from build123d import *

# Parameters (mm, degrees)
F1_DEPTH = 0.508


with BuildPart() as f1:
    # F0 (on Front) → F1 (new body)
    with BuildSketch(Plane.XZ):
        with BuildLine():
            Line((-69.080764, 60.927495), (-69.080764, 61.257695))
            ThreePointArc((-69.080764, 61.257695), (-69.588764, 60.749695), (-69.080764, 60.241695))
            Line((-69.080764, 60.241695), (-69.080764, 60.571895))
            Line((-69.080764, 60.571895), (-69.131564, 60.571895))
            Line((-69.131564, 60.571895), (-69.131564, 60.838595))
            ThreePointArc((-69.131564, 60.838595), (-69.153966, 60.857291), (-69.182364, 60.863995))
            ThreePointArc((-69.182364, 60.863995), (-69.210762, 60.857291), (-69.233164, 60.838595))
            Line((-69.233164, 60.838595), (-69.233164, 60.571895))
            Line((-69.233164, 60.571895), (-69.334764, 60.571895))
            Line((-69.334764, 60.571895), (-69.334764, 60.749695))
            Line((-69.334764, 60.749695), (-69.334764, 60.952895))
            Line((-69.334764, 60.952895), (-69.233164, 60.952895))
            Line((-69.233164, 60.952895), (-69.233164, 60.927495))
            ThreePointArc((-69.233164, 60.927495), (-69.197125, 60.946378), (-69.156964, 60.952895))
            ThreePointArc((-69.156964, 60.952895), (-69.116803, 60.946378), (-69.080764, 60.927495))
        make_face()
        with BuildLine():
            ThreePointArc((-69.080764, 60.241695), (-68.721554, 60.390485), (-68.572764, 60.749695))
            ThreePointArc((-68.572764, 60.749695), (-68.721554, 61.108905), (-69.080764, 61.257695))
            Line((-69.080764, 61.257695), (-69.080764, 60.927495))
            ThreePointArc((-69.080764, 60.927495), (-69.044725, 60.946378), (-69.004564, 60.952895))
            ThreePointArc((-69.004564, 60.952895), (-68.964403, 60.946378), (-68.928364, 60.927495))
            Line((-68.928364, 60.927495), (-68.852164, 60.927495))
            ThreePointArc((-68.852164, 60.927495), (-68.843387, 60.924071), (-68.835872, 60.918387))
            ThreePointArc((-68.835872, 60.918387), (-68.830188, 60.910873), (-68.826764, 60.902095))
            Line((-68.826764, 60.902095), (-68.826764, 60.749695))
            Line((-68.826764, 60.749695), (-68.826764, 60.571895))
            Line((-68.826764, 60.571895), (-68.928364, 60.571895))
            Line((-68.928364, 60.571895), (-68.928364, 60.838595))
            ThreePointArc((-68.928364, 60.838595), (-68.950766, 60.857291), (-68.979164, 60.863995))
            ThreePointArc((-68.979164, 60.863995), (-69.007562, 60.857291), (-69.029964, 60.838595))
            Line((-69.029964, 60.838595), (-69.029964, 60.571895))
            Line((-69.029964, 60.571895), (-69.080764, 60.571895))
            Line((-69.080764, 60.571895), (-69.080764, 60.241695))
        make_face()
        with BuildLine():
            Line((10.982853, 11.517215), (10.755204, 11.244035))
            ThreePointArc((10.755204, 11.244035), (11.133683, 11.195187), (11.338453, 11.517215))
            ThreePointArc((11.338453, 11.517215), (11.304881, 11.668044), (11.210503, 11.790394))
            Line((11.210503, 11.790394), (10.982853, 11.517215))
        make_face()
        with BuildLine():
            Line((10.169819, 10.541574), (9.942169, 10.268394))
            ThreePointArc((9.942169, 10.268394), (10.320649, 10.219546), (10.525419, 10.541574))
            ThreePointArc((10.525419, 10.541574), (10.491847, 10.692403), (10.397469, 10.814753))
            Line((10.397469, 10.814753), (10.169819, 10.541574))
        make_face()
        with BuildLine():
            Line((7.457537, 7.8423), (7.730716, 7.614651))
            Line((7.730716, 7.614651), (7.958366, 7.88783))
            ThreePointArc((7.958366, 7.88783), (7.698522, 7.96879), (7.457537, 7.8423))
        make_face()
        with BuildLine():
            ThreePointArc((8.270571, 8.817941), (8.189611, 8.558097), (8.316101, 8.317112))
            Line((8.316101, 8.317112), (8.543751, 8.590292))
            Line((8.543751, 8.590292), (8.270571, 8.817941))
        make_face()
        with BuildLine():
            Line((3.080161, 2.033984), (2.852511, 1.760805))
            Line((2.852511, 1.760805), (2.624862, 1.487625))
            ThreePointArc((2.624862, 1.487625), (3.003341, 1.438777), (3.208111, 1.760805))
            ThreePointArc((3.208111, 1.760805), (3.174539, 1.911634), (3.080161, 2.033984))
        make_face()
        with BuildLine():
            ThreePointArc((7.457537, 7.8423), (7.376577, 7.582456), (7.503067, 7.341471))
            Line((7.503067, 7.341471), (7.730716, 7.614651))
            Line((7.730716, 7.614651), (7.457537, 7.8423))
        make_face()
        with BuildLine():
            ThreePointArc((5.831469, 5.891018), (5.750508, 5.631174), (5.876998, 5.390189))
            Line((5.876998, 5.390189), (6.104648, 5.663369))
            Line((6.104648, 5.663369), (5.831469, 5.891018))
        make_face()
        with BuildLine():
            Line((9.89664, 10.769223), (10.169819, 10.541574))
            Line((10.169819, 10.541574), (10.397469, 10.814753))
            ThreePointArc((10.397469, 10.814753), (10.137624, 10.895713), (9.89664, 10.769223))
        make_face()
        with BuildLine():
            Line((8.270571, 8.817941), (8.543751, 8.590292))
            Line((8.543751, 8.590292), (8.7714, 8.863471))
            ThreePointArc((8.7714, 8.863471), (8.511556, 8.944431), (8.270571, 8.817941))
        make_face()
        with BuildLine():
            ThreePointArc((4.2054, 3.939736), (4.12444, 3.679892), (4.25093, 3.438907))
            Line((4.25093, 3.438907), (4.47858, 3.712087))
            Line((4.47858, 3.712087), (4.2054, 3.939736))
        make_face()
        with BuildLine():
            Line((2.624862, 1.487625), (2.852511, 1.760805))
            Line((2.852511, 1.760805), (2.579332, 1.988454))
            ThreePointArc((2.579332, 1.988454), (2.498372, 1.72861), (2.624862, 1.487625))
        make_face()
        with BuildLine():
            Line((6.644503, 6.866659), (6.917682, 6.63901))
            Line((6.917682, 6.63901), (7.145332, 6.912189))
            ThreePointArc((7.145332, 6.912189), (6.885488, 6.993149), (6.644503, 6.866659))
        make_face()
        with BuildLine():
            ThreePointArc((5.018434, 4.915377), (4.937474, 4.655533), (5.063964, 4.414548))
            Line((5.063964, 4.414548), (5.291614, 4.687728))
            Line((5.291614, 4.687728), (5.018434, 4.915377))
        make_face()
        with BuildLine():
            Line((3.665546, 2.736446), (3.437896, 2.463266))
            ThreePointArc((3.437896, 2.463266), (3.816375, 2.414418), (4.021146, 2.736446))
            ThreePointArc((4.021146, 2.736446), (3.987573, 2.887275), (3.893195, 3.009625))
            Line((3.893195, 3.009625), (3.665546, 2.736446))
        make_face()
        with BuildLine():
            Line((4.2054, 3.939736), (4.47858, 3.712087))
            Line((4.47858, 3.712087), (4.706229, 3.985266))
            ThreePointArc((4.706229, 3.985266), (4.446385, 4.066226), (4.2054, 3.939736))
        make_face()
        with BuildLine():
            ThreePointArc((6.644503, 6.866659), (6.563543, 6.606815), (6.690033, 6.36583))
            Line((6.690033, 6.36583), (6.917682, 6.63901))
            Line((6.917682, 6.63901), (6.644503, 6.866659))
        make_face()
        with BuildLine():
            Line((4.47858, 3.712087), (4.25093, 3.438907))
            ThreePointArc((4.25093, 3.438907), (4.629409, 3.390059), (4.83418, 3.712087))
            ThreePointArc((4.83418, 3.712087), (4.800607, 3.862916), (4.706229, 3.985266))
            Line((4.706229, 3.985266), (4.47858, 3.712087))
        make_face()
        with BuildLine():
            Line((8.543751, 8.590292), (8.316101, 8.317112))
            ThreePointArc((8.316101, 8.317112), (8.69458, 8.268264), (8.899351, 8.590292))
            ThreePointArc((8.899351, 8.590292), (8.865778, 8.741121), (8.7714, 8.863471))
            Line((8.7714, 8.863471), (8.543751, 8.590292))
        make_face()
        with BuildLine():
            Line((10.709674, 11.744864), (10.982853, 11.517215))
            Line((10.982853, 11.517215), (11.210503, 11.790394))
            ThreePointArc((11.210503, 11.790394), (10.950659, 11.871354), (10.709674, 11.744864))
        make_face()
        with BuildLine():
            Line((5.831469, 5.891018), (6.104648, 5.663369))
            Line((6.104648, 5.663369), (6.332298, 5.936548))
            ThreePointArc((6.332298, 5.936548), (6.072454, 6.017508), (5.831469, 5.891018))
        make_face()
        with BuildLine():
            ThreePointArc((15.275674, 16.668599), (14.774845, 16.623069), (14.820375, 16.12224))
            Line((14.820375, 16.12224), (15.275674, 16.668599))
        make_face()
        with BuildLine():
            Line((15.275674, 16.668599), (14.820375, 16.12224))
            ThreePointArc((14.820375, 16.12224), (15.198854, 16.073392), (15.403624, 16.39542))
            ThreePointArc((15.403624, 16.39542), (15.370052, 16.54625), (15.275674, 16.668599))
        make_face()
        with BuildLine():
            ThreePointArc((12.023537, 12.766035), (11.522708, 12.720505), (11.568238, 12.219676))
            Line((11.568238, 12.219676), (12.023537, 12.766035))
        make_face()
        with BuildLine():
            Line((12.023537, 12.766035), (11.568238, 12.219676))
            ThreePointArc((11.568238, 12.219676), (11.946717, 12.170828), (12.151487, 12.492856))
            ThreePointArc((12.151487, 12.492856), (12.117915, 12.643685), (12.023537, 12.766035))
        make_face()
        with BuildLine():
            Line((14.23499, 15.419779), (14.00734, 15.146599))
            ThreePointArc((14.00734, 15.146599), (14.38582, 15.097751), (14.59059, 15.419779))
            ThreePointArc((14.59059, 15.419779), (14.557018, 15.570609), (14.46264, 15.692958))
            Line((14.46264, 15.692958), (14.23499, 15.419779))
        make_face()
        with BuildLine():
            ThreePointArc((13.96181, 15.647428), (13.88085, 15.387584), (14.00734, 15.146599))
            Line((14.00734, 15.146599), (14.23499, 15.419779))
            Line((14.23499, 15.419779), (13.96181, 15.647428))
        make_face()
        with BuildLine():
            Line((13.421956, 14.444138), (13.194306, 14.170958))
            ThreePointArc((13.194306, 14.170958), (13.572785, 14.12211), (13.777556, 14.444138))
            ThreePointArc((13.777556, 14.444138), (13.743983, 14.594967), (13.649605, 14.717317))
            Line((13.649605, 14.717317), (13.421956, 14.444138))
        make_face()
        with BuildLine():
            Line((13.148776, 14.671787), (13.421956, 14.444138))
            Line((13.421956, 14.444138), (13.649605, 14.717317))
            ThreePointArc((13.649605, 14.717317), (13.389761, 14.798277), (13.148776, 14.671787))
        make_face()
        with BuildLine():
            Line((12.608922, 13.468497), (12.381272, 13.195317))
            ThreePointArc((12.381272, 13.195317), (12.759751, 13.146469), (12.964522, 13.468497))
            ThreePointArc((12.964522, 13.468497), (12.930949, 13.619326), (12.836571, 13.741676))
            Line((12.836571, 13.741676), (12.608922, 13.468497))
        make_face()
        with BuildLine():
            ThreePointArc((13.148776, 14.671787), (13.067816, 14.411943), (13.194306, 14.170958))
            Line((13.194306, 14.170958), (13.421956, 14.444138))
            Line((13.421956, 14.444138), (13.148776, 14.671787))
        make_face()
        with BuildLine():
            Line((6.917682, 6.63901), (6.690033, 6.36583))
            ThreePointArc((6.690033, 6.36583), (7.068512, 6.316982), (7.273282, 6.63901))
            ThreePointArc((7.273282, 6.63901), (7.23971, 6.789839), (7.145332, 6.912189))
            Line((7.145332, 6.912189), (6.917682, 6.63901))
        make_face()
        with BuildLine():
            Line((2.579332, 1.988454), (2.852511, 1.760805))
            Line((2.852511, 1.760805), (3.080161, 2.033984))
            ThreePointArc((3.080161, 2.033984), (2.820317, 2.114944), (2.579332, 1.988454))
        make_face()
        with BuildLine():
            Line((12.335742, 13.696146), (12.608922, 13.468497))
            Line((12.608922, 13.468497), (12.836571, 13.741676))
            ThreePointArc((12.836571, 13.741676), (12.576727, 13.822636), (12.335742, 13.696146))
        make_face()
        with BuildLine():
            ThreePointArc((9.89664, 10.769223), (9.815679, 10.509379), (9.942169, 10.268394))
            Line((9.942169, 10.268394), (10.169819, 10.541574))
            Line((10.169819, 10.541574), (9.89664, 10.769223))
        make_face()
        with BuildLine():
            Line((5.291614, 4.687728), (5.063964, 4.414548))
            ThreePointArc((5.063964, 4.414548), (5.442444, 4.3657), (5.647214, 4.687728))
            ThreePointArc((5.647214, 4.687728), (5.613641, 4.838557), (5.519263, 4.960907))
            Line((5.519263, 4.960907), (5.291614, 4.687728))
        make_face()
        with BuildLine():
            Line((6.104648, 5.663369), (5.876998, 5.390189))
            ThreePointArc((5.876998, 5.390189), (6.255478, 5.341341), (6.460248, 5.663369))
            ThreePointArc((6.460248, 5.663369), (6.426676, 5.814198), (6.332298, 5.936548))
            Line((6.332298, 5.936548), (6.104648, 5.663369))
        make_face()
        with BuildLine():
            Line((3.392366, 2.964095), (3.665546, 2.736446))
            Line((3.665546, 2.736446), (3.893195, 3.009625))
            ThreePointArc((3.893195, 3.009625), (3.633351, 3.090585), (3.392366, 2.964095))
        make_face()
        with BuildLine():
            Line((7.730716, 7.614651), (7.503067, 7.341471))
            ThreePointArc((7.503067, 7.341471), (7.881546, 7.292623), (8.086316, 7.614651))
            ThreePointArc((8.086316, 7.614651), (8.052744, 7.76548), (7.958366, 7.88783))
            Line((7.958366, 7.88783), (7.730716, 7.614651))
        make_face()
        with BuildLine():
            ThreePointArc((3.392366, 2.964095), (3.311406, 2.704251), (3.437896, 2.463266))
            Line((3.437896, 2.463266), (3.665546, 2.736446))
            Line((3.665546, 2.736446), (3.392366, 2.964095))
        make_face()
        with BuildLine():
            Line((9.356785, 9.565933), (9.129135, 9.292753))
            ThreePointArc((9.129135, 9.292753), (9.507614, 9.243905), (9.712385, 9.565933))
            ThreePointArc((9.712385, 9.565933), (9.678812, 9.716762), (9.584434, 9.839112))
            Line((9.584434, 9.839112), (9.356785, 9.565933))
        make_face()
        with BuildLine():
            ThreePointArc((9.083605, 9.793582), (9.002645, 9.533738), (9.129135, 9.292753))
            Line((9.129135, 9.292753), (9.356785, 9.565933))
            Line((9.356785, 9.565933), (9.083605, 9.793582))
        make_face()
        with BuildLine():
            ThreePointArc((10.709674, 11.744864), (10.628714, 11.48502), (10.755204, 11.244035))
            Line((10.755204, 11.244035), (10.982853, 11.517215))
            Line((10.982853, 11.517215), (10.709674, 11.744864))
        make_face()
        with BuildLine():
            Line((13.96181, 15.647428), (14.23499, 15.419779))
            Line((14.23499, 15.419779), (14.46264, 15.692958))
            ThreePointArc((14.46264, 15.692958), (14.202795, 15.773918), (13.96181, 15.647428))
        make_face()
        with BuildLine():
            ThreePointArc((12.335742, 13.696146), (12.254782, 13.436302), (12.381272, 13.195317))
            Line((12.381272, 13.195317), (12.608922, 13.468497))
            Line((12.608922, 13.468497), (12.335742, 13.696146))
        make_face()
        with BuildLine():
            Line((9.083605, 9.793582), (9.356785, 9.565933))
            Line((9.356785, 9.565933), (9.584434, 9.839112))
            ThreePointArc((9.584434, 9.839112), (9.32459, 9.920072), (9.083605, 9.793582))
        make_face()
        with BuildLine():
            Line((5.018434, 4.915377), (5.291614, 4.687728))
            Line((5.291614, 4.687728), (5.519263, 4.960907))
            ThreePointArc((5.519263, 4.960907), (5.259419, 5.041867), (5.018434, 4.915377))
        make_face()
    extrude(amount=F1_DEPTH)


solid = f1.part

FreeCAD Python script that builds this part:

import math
import FreeCAD as App
import Part
import Sketcher

V = App.Vector
Q = App.Units.Quantity

doc = App.newDocument("Part")
body = doc.addObject("PartDesign::Body", "Body")
body.AllowCompound = True

# Sketch on XZ plane
sketch1 = body.newObject("Sketcher::SketchObject", "Sketch")
sketch1.AttachmentSupport = (doc.getObject("XZ_Plane"), [""])
sketch1.MapMode = "FlatFace"
sketch1.addGeometry([
    Part.ArcOfCircle(Part.Circle(V(-69.080764, 60.749695, 0), V(0, 0, 1), 0.508), math.radians(90), math.radians(270)),  # 0
    Part.ArcOfCircle(Part.Circle(V(-69.080765, 60.749696, 0), V(0, 0, 1), 0.508001), math.radians(-89.999906), math.radians(-0.000094)),  # 1
    Part.ArcOfCircle(Part.Circle(V(-69.080765, 60.749694, 0), V(0, 0, 1), 0.508001), math.radians(0.000094), math.radians(89.999906)),  # 2
    Part.LineSegment(V(-69.131564, 60.571895, 0), V(-69.131564, 60.838595, 0)),  # 3
    Part.ArcOfCircle(Part.Circle(V(-69.182365, 60.800494, 0), V(0, 0, 1), 0.063501), math.radians(36.870438), math.radians(89.999459)),  # 4
    Part.ArcOfCircle(Part.Circle(V(-69.182363, 60.800494, 0), V(0, 0, 1), 0.063501), math.radians(90.000541), math.radians(143.129562)),  # 5
    Part.LineSegment(V(-69.233164, 60.838595, 0), V(-69.233164, 60.571895, 0)),  # 6
    Part.LineSegment(V(-69.233164, 60.571895, 0), V(-69.334764, 60.571895, 0)),  # 7
    Part.LineSegment(V(-69.334764, 60.571895, 0), V(-69.334764, 60.952895, 0)),  # 8
    Part.LineSegment(V(-69.334764, 60.952895, 0), V(-69.233164, 60.952895, 0)),  # 9
    Part.LineSegment(V(-69.233164, 60.952895, 0), V(-69.233164, 60.927495, 0)),  # 10
    Part.ArcOfCircle(Part.Circle(V(-69.156965, 60.825899, 0), V(0, 0, 1), 0.126996), math.radians(89.999352), math.radians(126.870546)),  # 11
    Part.ArcOfCircle(Part.Circle(V(-69.156963, 60.825899, 0), V(0, 0, 1), 0.126996), math.radians(53.129454), math.radians(90.000648)),  # 12
    Part.ArcOfCircle(Part.Circle(V(-69.004565, 60.825899, 0), V(0, 0, 1), 0.126996), math.radians(89.999352), math.radians(126.870546)),  # 13
    Part.ArcOfCircle(Part.Circle(V(-69.004563, 60.825899, 0), V(0, 0, 1), 0.126996), math.radians(53.129454), math.radians(90.000648)),  # 14
    Part.LineSegment(V(-68.928364, 60.927495, 0), V(-68.852164, 60.927495, 0)),  # 15
    Part.ArcOfCircle(Part.Circle(V(-68.860121, 60.894136, 0), V(0, 0, 1), 0.034295), math.radians(45.001837), math.radians(76.583644)),  # 16
    Part.ArcOfCircle(Part.Circle(V(-68.860112, 60.894144, 0), V(0, 0, 1), 0.034282), math.radians(13.410476), math.radians(45.004041)),  # 17
    Part.LineSegment(V(-68.826764, 60.902095, 0), V(-68.826764, 60.571895, 0)),  # 18
    Part.LineSegment(V(-68.826764, 60.571895, 0), V(-68.928364, 60.571895, 0)),  # 19
    Part.LineSegment(V(-68.928364, 60.571895, 0), V(-68.928364, 60.838595, 0)),  # 20
    Part.ArcOfCircle(Part.Circle(V(-68.979165, 60.800494, 0), V(0, 0, 1), 0.063501), math.radians(36.870438), math.radians(89.999459)),  # 21
    Part.ArcOfCircle(Part.Circle(V(-68.979163, 60.800494, 0), V(0, 0, 1), 0.063501), math.radians(90.000541), math.radians(143.129562)),  # 22
    Part.LineSegment(V(-69.029964, 60.838595, 0), V(-69.029964, 60.571895, 0)),  # 23
    Part.LineSegment(V(-69.029964, 60.571895, 0), V(-69.131564, 60.571895, 0)),  # 24
    Part.ArcOfCircle(Part.Circle(V(10.982853, 11.517214, 0), V(0, 0, 1), 0.3556), math.radians(-129.805572), math.radians(0.000126)),  # 25
    Part.ArcOfCircle(Part.Circle(V(10.982854, 11.517215, 0), V(0, 0, 1), 0.355599), math.radians(-0.00008), math.radians(50.194441)),  # 26
    Part.ArcOfCircle(Part.Circle(V(10.982854, 11.517214, 0), V(0, 0, 1), 0.3556), math.radians(50.194474), math.radians(140.194405)),  # 27
    Part.ArcOfCircle(Part.Circle(V(10.982854, 11.517215, 0), V(0, 0, 1), 0.3556), math.radians(140.194474), math.radians(230.194405)),  # 28
    Part.ArcOfCircle(Part.Circle(V(10.169819, 10.541574, 0), V(0, 0, 1), 0.3556), math.radians(-129.80559), math.radians(0.000069)),  # 29
    Part.ArcOfCircle(Part.Circle(V(10.16982, 10.541574, 0), V(0, 0, 1), 0.355599), math.radians(-0.00008), math.radians(50.194441)),  # 30
    Part.ArcOfCircle(Part.Circle(V(10.169819, 10.541574, 0), V(0, 0, 1), 0.3556), math.radians(50.194438), math.radians(140.19444)),  # 31
    Part.ArcOfCircle(Part.Circle(V(10.169818, 10.541573, 0), V(0, 0, 1), 0.355599), math.radians(140.194159), math.radians(230.194492)),  # 32
    Part.ArcOfCircle(Part.Circle(V(7.730717, 7.61465, 0), V(0, 0, 1), 0.3556), math.radians(50.194474), math.radians(140.194405)),  # 33
    Part.ArcOfCircle(Part.Circle(V(7.730717, 7.614651, 0), V(0, 0, 1), 0.3556), math.radians(140.194474), math.radians(230.194405)),  # 34
    Part.ArcOfCircle(Part.Circle(V(7.730716, 7.61465, 0), V(0, 0, 1), 0.3556), math.radians(-129.805572), math.radians(0.000126)),  # 35
    Part.ArcOfCircle(Part.Circle(V(7.730717, 7.614651, 0), V(0, 0, 1), 0.355599), math.radians(-0.00008), math.radians(50.194441)),  # 36
    Part.ArcOfCircle(Part.Circle(V(8.543751, 8.590292, 0), V(0, 0, 1), 0.3556), math.radians(140.194474), math.radians(230.194405)),  # 37
    Part.ArcOfCircle(Part.Circle(V(8.54375, 8.590292, 0), V(0, 0, 1), 0.355601), math.radians(-129.805483), math.radians(-0.000038)),  # 38
    Part.ArcOfCircle(Part.Circle(V(8.543747, 8.590289, 0), V(0, 0, 1), 0.355604), math.radians(0.000454), math.radians(50.194251)),  # 39
    Part.ArcOfCircle(Part.Circle(V(8.543751, 8.590291, 0), V(0, 0, 1), 0.3556), math.radians(50.194474), math.radians(140.194405)),  # 40
    Part.ArcOfCircle(Part.Circle(V(2.852512, 1.760805, 0), V(0, 0, 1), 0.3556), math.radians(140.194474), math.radians(230.194405)),  # 41
    Part.ArcOfCircle(Part.Circle(V(2.852511, 1.760804, 0), V(0, 0, 1), 0.3556), math.radians(-129.805572), math.radians(0.000126)),  # 42
    Part.ArcOfCircle(Part.Circle(V(2.852512, 1.760805, 0), V(0, 0, 1), 0.355599), math.radians(-0.00008), math.radians(50.194441)),  # 43
    Part.ArcOfCircle(Part.Circle(V(2.852512, 1.760804, 0), V(0, 0, 1), 0.3556), math.radians(50.194474), math.radians(140.194405)),  # 44
    Part.ArcOfCircle(Part.Circle(V(6.104647, 5.663368, 0), V(0, 0, 1), 0.355599), math.radians(140.194159), math.radians(230.194492)),  # 45
    Part.ArcOfCircle(Part.Circle(V(6.104648, 5.663369, 0), V(0, 0, 1), 0.3556), math.radians(-129.80559), math.radians(0.000069)),  # 46
    Part.ArcOfCircle(Part.Circle(V(6.104649, 5.663369, 0), V(0, 0, 1), 0.355599), math.radians(-0.00008), math.radians(50.194441)),  # 47
    Part.ArcOfCircle(Part.Circle(V(6.104649, 5.663368, 0), V(0, 0, 1), 0.3556), math.radians(50.194474), math.radians(140.194405)),  # 48
    Part.ArcOfCircle(Part.Circle(V(4.47858, 3.712087, 0), V(0, 0, 1), 0.3556), math.radians(140.194474), math.radians(230.194405)),  # 49
    Part.ArcOfCircle(Part.Circle(V(4.478579, 3.712087, 0), V(0, 0, 1), 0.355601), math.radians(-129.805483), math.radians(-0.000038)),  # 50
    Part.ArcOfCircle(Part.Circle(V(4.478576, 3.712084, 0), V(0, 0, 1), 0.355604), math.radians(0.000454), math.radians(50.194251)),  # 51
    Part.ArcOfCircle(Part.Circle(V(4.47858, 3.712086, 0), V(0, 0, 1), 0.3556), math.radians(50.194474), math.radians(140.194405)),  # 52
    Part.ArcOfCircle(Part.Circle(V(6.917683, 6.639009, 0), V(0, 0, 1), 0.3556), math.radians(50.194474), math.radians(140.194405)),  # 53
    Part.ArcOfCircle(Part.Circle(V(6.917683, 6.63901, 0), V(0, 0, 1), 0.3556), math.radians(140.194474), math.radians(230.194405)),  # 54
    Part.ArcOfCircle(Part.Circle(V(6.917682, 6.639009, 0), V(0, 0, 1), 0.3556), math.radians(-129.805572), math.radians(0.000126)),  # 55
    Part.ArcOfCircle(Part.Circle(V(6.917683, 6.63901, 0), V(0, 0, 1), 0.355599), math.radians(-0.00008), math.radians(50.194441)),  # 56
    Part.ArcOfCircle(Part.Circle(V(5.291614, 4.687728, 0), V(0, 0, 1), 0.3556), math.radians(140.194474), math.radians(230.194405)),  # 57
    Part.ArcOfCircle(Part.Circle(V(5.291614, 4.687728, 0), V(0, 0, 1), 0.3556), math.radians(-129.80559), math.radians(0.000069)),  # 58
    Part.ArcOfCircle(Part.Circle(V(5.29161, 4.687725, 0), V(0, 0, 1), 0.355604), math.radians(0.000454), math.radians(50.194251)),  # 59
    Part.ArcOfCircle(Part.Circle(V(5.291614, 4.687727, 0), V(0, 0, 1), 0.3556), math.radians(50.194474), math.radians(140.194405)),  # 60
    Part.ArcOfCircle(Part.Circle(V(3.665545, 2.736446, 0), V(0, 0, 1), 0.355601), math.radians(-129.805483), math.radians(-0.000038)),  # 61
    Part.ArcOfCircle(Part.Circle(V(3.665542, 2.736443, 0), V(0, 0, 1), 0.355604), math.radians(0.000454), math.radians(50.194251)),  # 62
    Part.ArcOfCircle(Part.Circle(V(3.665546, 2.736445, 0), V(0, 0, 1), 0.3556), math.radians(50.194474), math.radians(140.194405)),  # 63
    Part.ArcOfCircle(Part.Circle(V(3.665546, 2.736446, 0), V(0, 0, 1), 0.3556), math.radians(140.194474), math.radians(230.194405)),  # 64
    Part.ArcOfCircle(Part.Circle(V(15.048025, 16.395419, 0), V(0, 0, 1), 0.3556), math.radians(50.194439), math.radians(230.194439)),  # 65
    Part.ArcOfCircle(Part.Circle(V(15.048024, 16.395419, 0), V(0, 0, 1), 0.3556), math.radians(-129.805572), math.radians(0.000126)),  # 66
    Part.ArcOfCircle(Part.Circle(V(15.048029, 16.395422, 0), V(0, 0, 1), 0.355595), math.radians(-0.000387), math.radians(50.194748)),  # 67
    Part.ArcOfCircle(Part.Circle(V(11.795887, 12.492855, 0), V(0, 0, 1), 0.3556), math.radians(50.194439), math.radians(230.194439)),  # 68
    Part.ArcOfCircle(Part.Circle(V(11.795887, 12.492855, 0), V(0, 0, 1), 0.3556), math.radians(-129.805572), math.radians(0.000126)),  # 69
    Part.ArcOfCircle(Part.Circle(V(11.795888, 12.492856, 0), V(0, 0, 1), 0.355599), math.radians(-0.00008), math.radians(50.194441)),  # 70
    Part.ArcOfCircle(Part.Circle(V(14.23499, 15.419779, 0), V(0, 0, 1), 0.3556), math.radians(-129.80559), math.radians(0.000069)),  # 71
    Part.ArcOfCircle(Part.Circle(V(14.234995, 15.419781, 0), V(0, 0, 1), 0.355595), math.radians(-0.000387), math.radians(50.194748)),  # 72
    Part.ArcOfCircle(Part.Circle(V(14.23499, 15.419777, 0), V(0, 0, 1), 0.355601), math.radians(50.194526), math.radians(140.194332)),  # 73
    Part.ArcOfCircle(Part.Circle(V(14.23499, 15.419779, 0), V(0, 0, 1), 0.3556), math.radians(140.194474), math.radians(230.194405)),  # 74
    Part.ArcOfCircle(Part.Circle(V(13.421955, 14.444138, 0), V(0, 0, 1), 0.355601), math.radians(-129.805483), math.radians(-0.000038)),  # 75
    Part.ArcOfCircle(Part.Circle(V(13.421952, 14.444135, 0), V(0, 0, 1), 0.355604), math.radians(0.000454), math.radians(50.194251)),  # 76
    Part.ArcOfCircle(Part.Circle(V(13.421956, 14.444137, 0), V(0, 0, 1), 0.3556), math.radians(50.194474), math.radians(140.194405)),  # 77
    Part.ArcOfCircle(Part.Circle(V(13.421956, 14.444138, 0), V(0, 0, 1), 0.3556), math.radians(140.194474), math.radians(230.194405)),  # 78
    Part.ArcOfCircle(Part.Circle(V(12.608921, 13.468497, 0), V(0, 0, 1), 0.355601), math.radians(-129.805483), math.radians(-0.000038)),  # 79
    Part.ArcOfCircle(Part.Circle(V(12.608918, 13.468494, 0), V(0, 0, 1), 0.355604), math.radians(0.000454), math.radians(50.194251)),  # 80
    Part.ArcOfCircle(Part.Circle(V(12.608922, 13.468496, 0), V(0, 0, 1), 0.3556), math.radians(50.194474), math.radians(140.194405)),  # 81
    Part.ArcOfCircle(Part.Circle(V(12.608922, 13.468497, 0), V(0, 0, 1), 0.3556), math.radians(140.194474), math.radians(230.194405)),  # 82
    Part.ArcOfCircle(Part.Circle(V(9.356784, 9.565933, 0), V(0, 0, 1), 0.355601), math.radians(-129.805483), math.radians(-0.000038)),  # 83
    Part.ArcOfCircle(Part.Circle(V(9.356781, 9.56593, 0), V(0, 0, 1), 0.355604), math.radians(0.000454), math.radians(50.194251)),  # 84
    Part.ArcOfCircle(Part.Circle(V(9.356785, 9.565932, 0), V(0, 0, 1), 0.3556), math.radians(50.194474), math.radians(140.194405)),  # 85
    Part.ArcOfCircle(Part.Circle(V(9.356785, 9.565933, 0), V(0, 0, 1), 0.3556), math.radians(140.194474), math.radians(230.194405)),  # 86
], False)
sketch1.addConstraint([
    Sketcher.Constraint("Tangent", 0, 2, 1, 1),
    Sketcher.Constraint("Coincident", 1, 2, 2, 1),
    Sketcher.Constraint("Tangent", 2, 2, 0, 1),
    Sketcher.Constraint("Coincident", 3, 2, 4, 1),
    Sketcher.Constraint("Coincident", 4, 2, 5, 1),
    Sketcher.Constraint("Coincident", 5, 2, 6, 1),
    Sketcher.Constraint("Coincident", 6, 2, 7, 1),
    Sketcher.Constraint("Coincident", 7, 2, 8, 1),
    Sketcher.Constraint("Coincident", 8, 2, 9, 1),
    Sketcher.Constraint("Coincident", 9, 2, 10, 1),
    Sketcher.Constraint("Coincident", 10, 2, 11, 2),
    Sketcher.Constraint("Coincident", 11, 1, 12, 2),
    Sketcher.Constraint("Coincident", 12, 1, 13, 2),
    Sketcher.Constraint("Coincident", 13, 1, 14, 2),
    Sketcher.Constraint("Coincident", 14, 1, 15, 1),
    Sketcher.Constraint("Coincident", 15, 2, 16, 2),
    Sketcher.Constraint("Coincident", 16, 1, 17, 2),
    Sketcher.Constraint("Coincident", 17, 1, 18, 1),
    Sketcher.Constraint("Coincident", 18, 2, 19, 1),
    Sketcher.Constraint("Coincident", 19, 2, 20, 1),
    Sketcher.Constraint("Coincident", 20, 2, 21, 1),
    Sketcher.Constraint("Coincident", 21, 2, 22, 1),
    Sketcher.Constraint("Coincident", 22, 2, 23, 1),
    Sketcher.Constraint("Coincident", 23, 2, 24, 1),
    Sketcher.Constraint("Coincident", 24, 2, 3, 1),
    Sketcher.Constraint("Coincident", 25, 2, 26, 1),
    Sketcher.Constraint("Tangent", 26, 2, 27, 1),
    Sketcher.Constraint("Tangent", 27, 2, 28, 1),
    Sketcher.Constraint("Tangent", 28, 2, 25, 1),
    Sketcher.Constraint("Coincident", 29, 2, 30, 1),
    Sketcher.Constraint("Tangent", 30, 2, 31, 1),
    Sketcher.Constraint("Coincident", 31, 2, 32, 1),
    Sketcher.Constraint("Tangent", 32, 2, 29, 1),
    Sketcher.Constraint("Tangent", 33, 2, 34, 1),
    Sketcher.Constraint("Tangent", 34, 2, 35, 1),
    Sketcher.Constraint("Coincident", 35, 2, 36, 1),
    Sketcher.Constraint("Tangent", 36, 2, 33, 1),
    Sketcher.Constraint("Tangent", 37, 2, 38, 1),
    Sketcher.Constraint("Coincident", 38, 2, 39, 1),
    Sketcher.Constraint("Coincident", 39, 2, 40, 1),
    Sketcher.Constraint("Tangent", 40, 2, 37, 1),
    Sketcher.Constraint("Tangent", 41, 2, 42, 1),
    Sketcher.Constraint("Coincident", 42, 2, 43, 1),
    Sketcher.Constraint("Tangent", 43, 2, 44, 1),
    Sketcher.Constraint("Tangent", 44, 2, 41, 1),
    Sketcher.Constraint("Tangent", 45, 2, 46, 1),
    Sketcher.Constraint("Coincident", 46, 2, 47, 1),
    Sketcher.Constraint("Tangent", 47, 2, 48, 1),
    Sketcher.Constraint("Coincident", 48, 2, 45, 1),
    Sketcher.Constraint("Tangent", 49, 2, 50, 1),
    Sketcher.Constraint("Coincident", 50, 2, 51, 1),
    Sketcher.Constraint("Coincident", 51, 2, 52, 1),
    Sketcher.Constraint("Tangent", 52, 2, 49, 1),
    Sketcher.Constraint("Tangent", 53, 2, 54, 1),
    Sketcher.Constraint("Tangent", 54, 2, 55, 1),
    Sketcher.Constraint("Coincident", 55, 2, 56, 1),
    Sketcher.Constraint("Tangent", 56, 2, 53, 1),
    Sketcher.Constraint("Tangent", 57, 2, 58, 1),
    Sketcher.Constraint("Coincident", 58, 2, 59, 1),
    Sketcher.Constraint("Coincident", 59, 2, 60, 1),
    Sketcher.Constraint("Tangent", 60, 2, 57, 1),
    Sketcher.Constraint("Coincident", 61, 2, 62, 1),
    Sketcher.Constraint("Coincident", 62, 2, 63, 1),
    Sketcher.Constraint("Tangent", 63, 2, 64, 1),
    Sketcher.Constraint("Tangent", 64, 2, 61, 1),
    Sketcher.Constraint("Tangent", 65, 2, 66, 1),
    Sketcher.Constraint("Coincident", 66, 2, 67, 1),
    Sketcher.Constraint("Coincident", 67, 2, 65, 1),
    Sketcher.Constraint("Tangent", 68, 2, 69, 1),
    Sketcher.Constraint("Coincident", 69, 2, 70, 1),
    Sketcher.Constraint("Tangent", 70, 2, 68, 1),
    Sketcher.Constraint("Coincident", 71, 2, 72, 1),
    Sketcher.Constraint("Coincident", 72, 2, 73, 1),
    Sketcher.Constraint("Coincident", 73, 2, 74, 1),
    Sketcher.Constraint("Tangent", 74, 2, 71, 1),
    Sketcher.Constraint("Coincident", 75, 2, 76, 1),
    Sketcher.Constraint("Coincident", 76, 2, 77, 1),
    Sketcher.Constraint("Tangent", 77, 2, 78, 1),
    Sketcher.Constraint("Tangent", 78, 2, 75, 1),
    Sketcher.Constraint("Coincident", 79, 2, 80, 1),
    Sketcher.Constraint("Coincident", 80, 2, 81, 1),
    Sketcher.Constraint("Tangent", 81, 2, 82, 1),
    Sketcher.Constraint("Tangent", 82, 2, 79, 1),
    Sketcher.Constraint("Coincident", 83, 2, 84, 1),
    Sketcher.Constraint("Coincident", 84, 2, 85, 1),
    Sketcher.Constraint("Tangent", 85, 2, 86, 1),
    Sketcher.Constraint("Tangent", 86, 2, 83, 1),
    Sketcher.Constraint("Vertical", 3),
    Sketcher.Constraint("Vertical", 6),
    Sketcher.Constraint("Horizontal", 7),
    Sketcher.Constraint("Vertical", 8),
    Sketcher.Constraint("Horizontal", 9),
    Sketcher.Constraint("Vertical", 10),
    Sketcher.Constraint("Horizontal", 15),
    Sketcher.Constraint("Vertical", 18),
    Sketcher.Constraint("Horizontal", 19),
    Sketcher.Constraint("Vertical", 20),
    Sketcher.Constraint("Vertical", 23),
    Sketcher.Constraint("Horizontal", 24),
    Sketcher.Constraint("Coincident", 5, 3, 4, 3),
    Sketcher.Constraint("Coincident", 12, 3, 11, 3),
    Sketcher.Constraint("Coincident", 14, 3, 13, 3),
    Sketcher.Constraint("Coincident", 22, 3, 21, 3),
    Sketcher.Constraint("Coincident", 26, 3, 25, 3),
    Sketcher.Constraint("Coincident", 30, 3, 29, 3),
    Sketcher.Constraint("Coincident", 35, 3, 33, 3),
    Sketcher.Constraint("Coincident", 39, 3, 37, 3),
    Sketcher.Constraint("Coincident", 43, 3, 41, 3),
    Sketcher.Constraint("Coincident", 47, 3, 45, 3),
    Sketcher.Constraint("Coincident", 51, 3, 49, 3),
    Sketcher.Constraint("Coincident", 55, 3, 53, 3),
    Sketcher.Constraint("Coincident", 59, 3, 57, 3),
    Sketcher.Constraint("Coincident", 62, 3, 61, 3),
    Sketcher.Constraint("Coincident", 67, 3, 65, 3),
    Sketcher.Constraint("Coincident", 72, 3, 71, 3),
    Sketcher.Constraint("Coincident", 73, 3, 71, 3),
    Sketcher.Constraint("Coincident", 76, 3, 75, 3),
    Sketcher.Constraint("Coincident", 80, 3, 79, 3),
    Sketcher.Constraint("Coincident", 84, 3, 83, 3),
    Sketcher.Constraint("Equal", 0, 1),
    Sketcher.Constraint("Equal", 12, 13),
    Sketcher.Constraint("Equal", 5, 21),
    Sketcher.Constraint("Equal", 28, 29),
    Sketcher.Constraint("Equal", 30, 31),
    Sketcher.Constraint("Equal", 32, 33),
    Sketcher.Constraint("Equal", 36, 37),
    Sketcher.Constraint("Equal", 37, 38),
    Sketcher.Constraint("Equal", 40, 41),
    Sketcher.Constraint("Equal", 44, 45),
    Sketcher.Constraint("Equal", 45, 46),
    Sketcher.Constraint("Equal", 48, 49),
    Sketcher.Constraint("Equal", 49, 50),
    Sketcher.Constraint("Equal", 52, 53),
    Sketcher.Constraint("Equal", 56, 57),
    Sketcher.Constraint("Equal", 57, 58),
    Sketcher.Constraint("Equal", 60, 61),
    Sketcher.Constraint("Equal", 61, 63),
    Sketcher.Constraint("Equal", 64, 65),
    Sketcher.Constraint("Equal", 66, 68),
    Sketcher.Constraint("Equal", 68, 69),
    Sketcher.Constraint("Equal", 70, 71),
    Sketcher.Constraint("Equal", 74, 75),
    Sketcher.Constraint("Equal", 75, 77),
    Sketcher.Constraint("Equal", 78, 79),
    Sketcher.Constraint("Equal", 79, 81),
    Sketcher.Constraint("Equal", 82, 83),
    Sketcher.Constraint("Equal", 83, 85),
    Sketcher.Constraint("Horizontal", 12, 3, 13, 3),
    Sketcher.Constraint("Horizontal", 5, 3, 21, 3),
    Sketcher.Constraint("Horizontal", 2, 3, 1, 2),
    Sketcher.Constraint("Horizontal", 3, 2, 5, 2),
    Sketcher.Constraint("Horizontal", 9, 2, 11, 1),
    Sketcher.Constraint("Horizontal", 10, 2, 12, 1),
    Sketcher.Constraint("Horizontal", 12, 1, 14, 1),
    Sketcher.Constraint("Horizontal", 7, 2, 18, 2),
    Sketcher.Constraint("Horizontal", 5, 2, 20, 2),
    Sketcher.Constraint("Horizontal", 20, 2, 22, 2),
    Sketcher.Constraint("Horizontal", 19, 2, 23, 2),
    Sketcher.Constraint("Horizontal", 28, 3, 25, 2),
    Sketcher.Constraint("Horizontal", 32, 3, 29, 2),
    Sketcher.Constraint("Horizontal", 36, 3, 35, 2),
    Sketcher.Constraint("Horizontal", 40, 3, 38, 2),
    Sketcher.Constraint("Horizontal", 44, 3, 42, 2),
    Sketcher.Constraint("Horizontal", 48, 3, 46, 2),
    Sketcher.Constraint("Horizontal", 52, 3, 50, 2),
    Sketcher.Constraint("Horizontal", 56, 3, 55, 2),
    Sketcher.Constraint("Horizontal", 60, 3, 58, 2),
    Sketcher.Constraint("Horizontal", 64, 3, 61, 2),
    Sketcher.Constraint("Horizontal", 65, 3, 66, 2),
    Sketcher.Constraint("Horizontal", 70, 3, 69, 2),
    Sketcher.Constraint("Horizontal", 74, 3, 71, 2),
    Sketcher.Constraint("Horizontal", 78, 3, 75, 2),
    Sketcher.Constraint("Horizontal", 82, 3, 79, 2),
    Sketcher.Constraint("Horizontal", 86, 3, 83, 2),
    Sketcher.Constraint("Vertical", 2, 3, 0, 2),
    Sketcher.Constraint("Vertical", 0, 2, 2, 2),
    Sketcher.Constraint("Vertical", 5, 3, 4, 2),
    Sketcher.Constraint("Vertical", 6, 2, 9, 2),
    Sketcher.Constraint("Vertical", 12, 3, 11, 1),
    Sketcher.Constraint("Vertical", 2, 2, 12, 1),
    Sketcher.Constraint("Vertical", 14, 3, 13, 1),
    Sketcher.Constraint("Vertical", 14, 1, 19, 2),
    Sketcher.Constraint("Vertical", 22, 3, 21, 2),
    Sketcher.Constraint("Equal", 9, 19),
    Sketcher.Constraint("Equal", 19, 24),
    Sketcher.Constraint("Radius", 0, Q("0.02 in")),
    Sketcher.Constraint("Radius", 11, Q("0.0049998 in")),
    Sketcher.Constraint("Radius", 25, Q("0.014 in")),
    Sketcher.Constraint("Radius", 4, Q("0.0025 in")),
    Sketcher.Constraint("DistanceX", 7, 2, 7, 1, Q("0.004 in")),
    Sketcher.Constraint("DistanceX", 15, 1, 15, 2, Q("0.003 in")),
    Sketcher.Constraint("DistanceY", 8, 1, 8, 2, Q("0.015 in")),
    Sketcher.Constraint("DistanceY", 10, 2, 10, 1, Q("0.001 in")),
    Sketcher.Constraint("DistanceY", 18, 2, 18, 1, Q("0.013 in")),
    Sketcher.Constraint("DistanceY", 3, 1, 3, 2, Q("0.0105 in")),
    Sketcher.Constraint("DistanceY", -1, 1, 70, 2, Q("0.5025998 in")),
    Sketcher.Constraint("Radius", 16, 0.034295),
    Sketcher.Constraint("Radius", 17, 0.034282),
    Sketcher.Constraint("DistanceY", -1, 1, 11, 3, 60.825899),
    Sketcher.Constraint("DistanceY", -1, 1, 33, 2, 7.8423),
    Sketcher.Constraint("DistanceX", -1, 1, 37, 2, 8.316101),
    Sketcher.Constraint("DistanceX", -1, 1, 39, 2, 8.7714),
    Sketcher.Constraint("DistanceX", -1, 1, 45, 2, 5.876998),
    Sketcher.Constraint("DistanceX", -1, 1, 47, 2, 6.332298),
    Sketcher.Constraint("DistanceX", -1, 1, 52, 2, 4.2054),
    Sketcher.Constraint("DistanceY", -1, 1, 67, 2, 16.668599),
    Sketcher.Constraint("DistanceY", -1, 1, 74, 2, 15.146599),
    Sketcher.Constraint("DistanceX", 16, 3, -1, 1, 68.860121),
    Sketcher.Constraint("DistanceX", 17, 3, -1, 1, 68.860112),
    Sketcher.Constraint("DistanceX", -1, 1, 29, 3, 10.169819),
    Sketcher.Constraint("DistanceY", -1, 1, 33, 3, 7.61465),
    Sketcher.Constraint("DistanceX", -1, 1, 37, 3, 8.543751),
    Sketcher.Constraint("DistanceY", -1, 1, 37, 3, 8.590292),
    Sketcher.Constraint("DistanceX", -1, 1, 41, 3, 2.852512),
    Sketcher.Constraint("DistanceY", -1, 1, 46, 3, 5.663369),
    Sketcher.Constraint("DistanceX", -1, 1, 47, 3, 6.104649),
    Sketcher.Constraint("DistanceX", -1, 1, 49, 3, 4.47858),
    Sketcher.Constraint("DistanceY", -1, 1, 53, 3, 6.639009),
    Sketcher.Constraint("DistanceX", -1, 1, 59, 3, 5.29161),
    Sketcher.Constraint("DistanceY", -1, 1, 65, 3, 16.395419),
    Sketcher.Constraint("DistanceX", -1, 1, 67, 3, 15.048029),
    Sketcher.Constraint("DistanceX", -1, 1, 70, 3, 11.795888),
    Sketcher.Constraint("DistanceX", -1, 1, 71, 3, 14.23499),
    Sketcher.Constraint("DistanceY", -1, 1, 71, 3, 15.419779),
    Sketcher.Constraint("DistanceY", -1, 1, 75, 3, 14.444138),
    Sketcher.Constraint("DistanceX", -1, 1, 79, 3, 12.608921),
    Sketcher.Constraint("DistanceX", -1, 1, 84, 3, 9.356781),
    Sketcher.Constraint("DistanceY", -1, 1, 84, 3, 9.56593),
    Sketcher.Constraint("DistanceX", -1, 1, 30, 2, 10.397469),
    Sketcher.Constraint("DistanceX", -1, 1, 31, 2, 9.89664),
    Sketcher.Constraint("DistanceX", -1, 1, 32, 2, 9.942169),
    Sketcher.Constraint("DistanceY", -1, 1, 34, 2, 7.341471),
    Sketcher.Constraint("DistanceY", -1, 1, 36, 2, 7.88783),
    Sketcher.Constraint("DistanceX", -1, 1, 40, 2, 8.270571),
    Sketcher.Constraint("DistanceX", -1, 1, 41, 2, 2.624862),
    Sketcher.Constraint("DistanceX", -1, 1, 43, 2, 3.080161),
    Sketcher.Constraint("DistanceX", -1, 1, 44, 2, 2.579332),
    Sketcher.Constraint("DistanceX", -1, 1, 48, 2, 5.831469),
    Sketcher.Constraint("DistanceX", -1, 1, 49, 2, 4.25093),
    Sketcher.Constraint("DistanceX", -1, 1, 51, 2, 4.706229),
    Sketcher.Constraint("DistanceY", -1, 1, 53, 2, 6.866659),
    Sketcher.Constraint("DistanceY", -1, 1, 54, 2, 6.36583),
    Sketcher.Constraint("DistanceX", -1, 1, 55, 2, 7.273282),
    Sketcher.Constraint("DistanceY", -1, 1, 56, 2, 6.912189),
    Sketcher.Constraint("DistanceY", -1, 1, 65, 2, 16.12224),
    Sketcher.Constraint("DistanceX", -1, 1, 72, 2, 14.46264),
    Sketcher.Constraint("DistanceX", -1, 1, 73, 2, 13.96181),
    Sketcher.Constraint("DistanceX", -1, 1, 80, 2, 12.836571),
    Sketcher.Constraint("DistanceX", -1, 1, 81, 2, 12.335742),
    Sketcher.Constraint("DistanceX", -1, 1, 82, 2, 12.381272),
    Sketcher.Constraint("DistanceY", -1, 1, 0, 3, 60.749695),
    Sketcher.Constraint("DistanceX", -1, 1, 25, 3, 10.982853),
    Sketcher.Constraint("DistanceY", -1, 1, 25, 3, 11.517214),
    Sketcher.Constraint("DistanceY", -1, 1, 29, 3, 10.541574),
    Sketcher.Constraint("DistanceX", -1, 1, 33, 3, 7.730717),
    Sketcher.Constraint("DistanceY", -1, 1, 41, 3, 1.760805),
    Sketcher.Constraint("DistanceY", -1, 1, 49, 3, 3.712087),
    Sketcher.Constraint("DistanceY", -1, 1, 57, 3, 4.687728),
    Sketcher.Constraint("DistanceX", -1, 1, 61, 3, 3.665545),
    Sketcher.Constraint("DistanceY", -1, 1, 61, 3, 2.736446),
    Sketcher.Constraint("DistanceY", -1, 1, 68, 3, 12.492855),
    Sketcher.Constraint("DistanceX", -1, 1, 75, 3, 13.421955),
    Sketcher.Constraint("DistanceY", -1, 1, 79, 3, 13.468497),
    Sketcher.Constraint("DistanceX", 16, 1, -1, 1, 68.835872),
    Sketcher.Constraint("DistanceX", -1, 1, 26, 2, 11.210503),
    Sketcher.Constraint("DistanceX", -1, 1, 27, 2, 10.709674),
    Sketcher.Constraint("DistanceX", -1, 1, 28, 2, 10.755204),
    Sketcher.Constraint("DistanceX", -1, 1, 57, 2, 5.063964),
    Sketcher.Constraint("DistanceX", -1, 1, 59, 2, 5.519263),
    Sketcher.Constraint("DistanceX", -1, 1, 60, 2, 5.018434),
    Sketcher.Constraint("DistanceX", -1, 1, 62, 2, 3.893195),
    Sketcher.Constraint("DistanceX", -1, 1, 63, 2, 3.392366),
    Sketcher.Constraint("DistanceX", -1, 1, 64, 2, 3.437896),
    Sketcher.Constraint("DistanceX", -1, 1, 68, 2, 11.568238),
    Sketcher.Constraint("DistanceX", -1, 1, 76, 2, 13.649605),
    Sketcher.Constraint("DistanceX", -1, 1, 77, 2, 13.148776),
    Sketcher.Constraint("DistanceX", -1, 1, 78, 2, 13.194306),
    Sketcher.Constraint("DistanceX", -1, 1, 84, 2, 9.584434),
    Sketcher.Constraint("DistanceX", -1, 1, 85, 2, 9.083605),
    Sketcher.Constraint("DistanceX", -1, 1, 86, 2, 9.129135),
])
pad1 = body.newObject("PartDesign::Pad", "Pad")
pad1.Profile = sketch1
pad1.Length = Q("0.02 in")

doc.recompute()
